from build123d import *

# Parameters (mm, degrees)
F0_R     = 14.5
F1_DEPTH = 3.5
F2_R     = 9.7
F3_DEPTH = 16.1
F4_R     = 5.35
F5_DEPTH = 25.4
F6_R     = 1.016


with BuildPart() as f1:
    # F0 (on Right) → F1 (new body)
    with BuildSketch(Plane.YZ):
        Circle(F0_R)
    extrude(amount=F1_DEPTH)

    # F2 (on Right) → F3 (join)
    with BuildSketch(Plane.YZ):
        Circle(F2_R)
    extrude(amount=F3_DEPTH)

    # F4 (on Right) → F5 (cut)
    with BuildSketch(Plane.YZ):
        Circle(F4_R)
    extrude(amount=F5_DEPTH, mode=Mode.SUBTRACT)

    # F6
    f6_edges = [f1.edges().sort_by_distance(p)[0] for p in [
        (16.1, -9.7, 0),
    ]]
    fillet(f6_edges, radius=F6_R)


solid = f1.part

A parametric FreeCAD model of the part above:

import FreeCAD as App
import Part
import Sketcher
from FreeCAD import Vector


def edges_at(feature, points):
    """Names of the edges that pass closest to the given points."""
    edges = feature.Shape.Edges
    near = lambda p: min(range(len(edges)), key=lambda i: edges[i].distToShape(Part.Vertex(*p))[0])
    return sorted({f"Edge{near(p) + 1}" for p in points})

doc = App.newDocument("Part")
body = doc.addObject("PartDesign::Body", "Body")

sketch1 = body.newObject("Sketcher::SketchObject", "Sketch")
sketch1.AttachmentSupport = (doc.getObject("YZ_Plane"), [""])
sketch1.MapMode = "FlatFace"
sketch1.addGeometry(Part.Circle(Vector(0, 0, 0), Vector(0, 0, 1), 14.5), False)
sketch1.addConstraint([
    Sketcher.Constraint("Coincident", 0, 3, -1, 1),
    Sketcher.Constraint("Diameter", 0, 29.0),
])
pad1 = body.newObject("PartDesign::Pad", "Pad")
pad1.Profile = sketch1
pad1.Length = 3.5

sketch2 = body.newObject("Sketcher::SketchObject", "Sketch001")
sketch2.AttachmentSupport = (doc.getObject("YZ_Plane"), [""])
sketch2.MapMode = "FlatFace"
sketch2.addGeometry(Part.Circle(Vector(0, 0, 0), Vector(0, 0, 1), 9.7), False)
sketch2.addConstraint([
    Sketcher.Constraint("Coincident", 0, 3, -1, 1),
    Sketcher.Constraint("Diameter", 0, 19.4),
])
pad2 = body.newObject("PartDesign::Pad", "Pad001")
pad2.Profile = sketch2
pad2.Length = 16.1

sketch3 = body.newObject("Sketcher::SketchObject", "Sketch002")
sketch3.AttachmentSupport = (doc.getObject("YZ_Plane"), [""])
sketch3.MapMode = "FlatFace"
sketch3.addGeometry(Part.Circle(Vector(0, 0, 0), Vector(0, 0, 1), 5.35), False)
sketch3.addConstraint([
    Sketcher.Constraint("Coincident", 0, 3, -1, 1),
    Sketcher.Constraint("Diameter", 0, 10.7),
])
pocket1 = body.newObject("PartDesign::Pocket", "Pocket")
pocket1.Profile = sketch3
pocket1.Length = 25.4
pocket1.Reversed = True
doc.recompute()

fillet = body.newObject("PartDesign::Fillet", "Fillet")
fillet.Base = (pocket1, edges_at(pocket1, [(16.1, -9.7, 0)]))
fillet.Radius = 1.016

doc.recompute()
